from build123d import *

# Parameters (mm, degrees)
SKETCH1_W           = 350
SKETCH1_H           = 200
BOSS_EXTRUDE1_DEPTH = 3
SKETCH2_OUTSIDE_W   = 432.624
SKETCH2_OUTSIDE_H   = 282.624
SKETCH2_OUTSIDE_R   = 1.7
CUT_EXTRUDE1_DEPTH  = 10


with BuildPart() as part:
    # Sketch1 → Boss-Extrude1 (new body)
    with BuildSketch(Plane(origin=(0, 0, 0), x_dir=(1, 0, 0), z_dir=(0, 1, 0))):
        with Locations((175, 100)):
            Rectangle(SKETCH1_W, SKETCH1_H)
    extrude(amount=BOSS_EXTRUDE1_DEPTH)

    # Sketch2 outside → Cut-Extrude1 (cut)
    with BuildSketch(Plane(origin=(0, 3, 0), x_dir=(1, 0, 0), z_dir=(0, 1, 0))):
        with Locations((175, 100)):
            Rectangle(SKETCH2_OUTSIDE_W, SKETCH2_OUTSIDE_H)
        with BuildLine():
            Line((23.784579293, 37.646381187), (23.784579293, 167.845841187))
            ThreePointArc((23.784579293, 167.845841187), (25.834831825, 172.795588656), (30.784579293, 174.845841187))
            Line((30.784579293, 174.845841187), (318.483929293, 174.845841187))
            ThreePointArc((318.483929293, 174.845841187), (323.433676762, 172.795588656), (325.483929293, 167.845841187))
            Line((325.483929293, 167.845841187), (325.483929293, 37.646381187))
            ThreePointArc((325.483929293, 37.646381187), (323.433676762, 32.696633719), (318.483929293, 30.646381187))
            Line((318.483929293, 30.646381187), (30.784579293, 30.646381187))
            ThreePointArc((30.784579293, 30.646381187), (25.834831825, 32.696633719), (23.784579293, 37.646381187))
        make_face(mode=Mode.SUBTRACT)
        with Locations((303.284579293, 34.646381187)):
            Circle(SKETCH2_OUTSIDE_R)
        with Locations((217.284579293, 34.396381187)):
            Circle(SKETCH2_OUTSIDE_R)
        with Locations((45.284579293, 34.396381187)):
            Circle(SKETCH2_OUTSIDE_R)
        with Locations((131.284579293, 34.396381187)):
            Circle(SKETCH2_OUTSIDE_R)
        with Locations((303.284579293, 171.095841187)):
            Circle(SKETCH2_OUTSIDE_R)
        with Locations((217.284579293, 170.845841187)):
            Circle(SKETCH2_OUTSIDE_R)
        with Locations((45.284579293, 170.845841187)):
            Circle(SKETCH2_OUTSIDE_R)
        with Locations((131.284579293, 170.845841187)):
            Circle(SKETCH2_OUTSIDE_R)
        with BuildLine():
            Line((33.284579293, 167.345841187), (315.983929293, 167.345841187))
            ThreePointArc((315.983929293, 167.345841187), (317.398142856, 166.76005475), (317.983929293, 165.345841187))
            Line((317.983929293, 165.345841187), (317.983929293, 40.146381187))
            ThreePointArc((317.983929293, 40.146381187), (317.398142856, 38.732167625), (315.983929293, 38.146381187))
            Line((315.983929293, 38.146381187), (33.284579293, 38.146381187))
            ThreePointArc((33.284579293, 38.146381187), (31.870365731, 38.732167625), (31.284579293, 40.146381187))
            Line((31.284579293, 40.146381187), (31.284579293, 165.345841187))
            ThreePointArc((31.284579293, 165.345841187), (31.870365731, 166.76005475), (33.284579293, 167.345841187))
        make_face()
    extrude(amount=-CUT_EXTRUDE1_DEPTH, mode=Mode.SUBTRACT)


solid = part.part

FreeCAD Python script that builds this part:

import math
import FreeCAD as App
import Part
import Sketcher
from FreeCAD import Vector

doc = App.newDocument("Part")
body = doc.addObject("PartDesign::Body", "Body")

sketch1 = body.newObject("Sketcher::SketchObject", "Sketch")
sketch1.AttachmentSupport = (doc.getObject("XZ_Plane"), [""])
sketch1.MapMode = "FlatFace"
sketch1.addGeometry(Part.LineSegment(Vector(0, -200, 0), Vector(0, 0, 0)), False)
sketch1.addGeometry(Part.LineSegment(Vector(0, 0, 0), Vector(350, 0, 0)), False)
sketch1.addGeometry(Part.LineSegment(Vector(350, 0, 0), Vector(350, -200, 0)), False)
sketch1.addGeometry(Part.LineSegment(Vector(350, -200, 0), Vector(0, -200, 0)), False)
sketch1.addConstraint(Sketcher.Constraint("Coincident", 0, 2, 1, 1))
sketch1.addConstraint(Sketcher.Constraint("Coincident", 1, 2, 2, 1))
sketch1.addConstraint(Sketcher.Constraint("Coincident", 2, 2, 3, 1))
sketch1.addConstraint(Sketcher.Constraint("Coincident", 3, 2, 0, 1))
sketch1.addConstraint(Sketcher.Constraint("Vertical", 0))
sketch1.addConstraint(Sketcher.Constraint("Horizontal", 1))
sketch1.addConstraint(Sketcher.Constraint("Vertical", 2))
sketch1.addConstraint(Sketcher.Constraint("Horizontal", 3))
sketch1.addConstraint(Sketcher.Constraint("Coincident", 0, 2, -1, 1))
sketch1.addConstraint(Sketcher.Constraint("DistanceX", 1, 1, 1, 2, 350.0))
sketch1.addConstraint(Sketcher.Constraint("DistanceY", 0, 1, 0, 2, 200.0))
pad1 = body.newObject("PartDesign::Pad", "Pad")
pad1.Profile = sketch1
pad1.Length = 3
pad1.Reversed = True

sketch2 = body.newObject("Sketcher::SketchObject", "Sketch001")
sketch2.AttachmentSupport = (doc.getObject("XZ_Plane"), [""])
sketch2.MapMode = "FlatFace"
sketch2.AttachmentOffset = App.Placement(Vector(0, 0, -3), App.Rotation())
sketch2.addGeometry(Part.LineSegment(Vector(-41.3, -241.3, 0), Vector(-41.3, 41.3, 0)), False)
sketch2.addGeometry(Part.LineSegment(Vector(-41.3, 41.3, 0), Vector(391.3, 41.3, 0)), False)
sketch2.addGeometry(Part.LineSegment(Vector(391.3, 41.3, 0), Vector(391.3, -241.3, 0)), False)
sketch2.addGeometry(Part.LineSegment(Vector(391.3, -241.3, 0), Vector(-41.3, -241.3, 0)), False)
sketch2.addGeometry(Part.ArcOfCircle(Part.Circle(Vector(30.8, -37.6, 0), Vector(0, 0, 1), 7), math.radians(90), math.radians(180)), False)
sketch2.addGeometry(Part.LineSegment(Vector(23.8, -37.6, 0), Vector(23.8, -167.8, 0)), False)
sketch2.addGeometry(Part.ArcOfCircle(Part.Circle(Vector(30.8, -167.8, 0), Vector(0, 0, 1), 7), math.radians(180), math.radians(270)), False)
sketch2.addGeometry(Part.LineSegment(Vector(30.8, -174.8, 0), Vector(318.5, -174.8, 0)), False)
sketch2.addGeometry(Part.ArcOfCircle(Part.Circle(Vector(318.5, -167.8, 0), Vector(0, 0, 1), 7), math.radians(-90), math.radians(0)), False)
sketch2.addGeometry(Part.LineSegment(Vector(325.5, -167.8, 0), Vector(325.5, -37.6, 0)), False)
sketch2.addGeometry(Part.ArcOfCircle(Part.Circle(Vector(318.5, -37.6, 0), Vector(0, 0, 1), 7), math.radians(0), math.radians(90)), False)
sketch2.addGeometry(Part.LineSegment(Vector(318.5, -30.6, 0), Vector(30.8, -30.6, 0)), False)
sketch2.addGeometry(Part.Circle(Vector(303.3, -34.6, 0), Vector(0, 0, 1), 1.7), False)
sketch2.addGeometry(Part.Circle(Vector(217.3, -34.4, 0), Vector(0, 0, 1), 1.7), False)
sketch2.addGeometry(Part.Circle(Vector(45.3, -34.4, 0), Vector(0, 0, 1), 1.7), False)
sketch2.addGeometry(Part.Circle(Vector(131.3, -34.4, 0), Vector(0, 0, 1), 1.7), False)
sketch2.addGeometry(Part.Circle(Vector(303.3, -171.1, 0), Vector(0, 0, 1), 1.7), False)
sketch2.addGeometry(Part.Circle(Vector(217.3, -170.8, 0), Vector(0, 0, 1), 1.7), False)
sketch2.addGeometry(Part.Circle(Vector(45.3, -170.8, 0), Vector(0, 0, 1), 1.7), False)
sketch2.addGeometry(Part.Circle(Vector(131.3, -170.8, 0), Vector(0, 0, 1), 1.7), False)
sketch2.addGeometry(Part.LineSegment(Vector(316, -167.3, 0), Vector(33.3, -167.3, 0)), False)
sketch2.addGeometry(Part.ArcOfCircle(Part.Circle(Vector(33.3, -165.3, 0), Vector(0, 0, 1), 2), math.radians(180), math.radians(270)), False)
sketch2.addGeometry(Part.LineSegment(Vector(31.3, -165.3, 0), Vector(31.3, -40.1, 0)), False)
sketch2.addGeometry(Part.ArcOfCircle(Part.Circle(Vector(33.3, -40.1, 0), Vector(0, 0, 1), 2), math.radians(90), math.radians(180)), False)
sketch2.addGeometry(Part.LineSegment(Vector(33.3, -38.1, 0), Vector(316, -38.1, 0)), False)
sketch2.addGeometry(Part.ArcOfCircle(Part.Circle(Vector(316, -40.1, 0), Vector(0, 0, 1), 2), math.radians(0), math.radians(90)), False)
sketch2.addGeometry(Part.LineSegment(Vector(318, -40.1, 0), Vector(318, -165.3, 0)), False)
sketch2.addGeometry(Part.ArcOfCircle(Part.Circle(Vector(316, -165.3, 0), Vector(0, 0, 1), 2), math.radians(-90), math.radians(0)), False)
sketch2.addConstraint(Sketcher.Constraint("Coincident", 0, 2, 1, 1))
sketch2.addConstraint(Sketcher.Constraint("Coincident", 1, 2, 2, 1))
sketch2.addConstraint(Sketcher.Constraint("Coincident", 2, 2, 3, 1))
sketch2.addConstraint(Sketcher.Constraint("Coincident", 3, 2, 0, 1))
sketch2.addConstraint(Sketcher.Constraint("Tangent", 4, 2, 5, 1))
sketch2.addConstraint(Sketcher.Constraint("Tangent", 5, 2, 6, 1))
sketch2.addConstraint(Sketcher.Constraint("Tangent", 6, 2, 7, 1))
sketch2.addConstraint(Sketcher.Constraint("Tangent", 7, 2, 8, 1))
sketch2.addConstraint(Sketcher.Constraint("Tangent", 8, 2, 9, 1))
sketch2.addConstraint(Sketcher.Constraint("Tangent", 9, 2, 10, 1))
sketch2.addConstraint(Sketcher.Constraint("Tangent", 10, 2, 11, 1))
sketch2.addConstraint(Sketcher.Constraint("Tangent", 11, 2, 4, 1))
sketch2.addConstraint(Sketcher.Constraint("Tangent", 20, 2, 21, 2))
sketch2.addConstraint(Sketcher.Constraint("Tangent", 21, 1, 22, 1))
sketch2.addConstraint(Sketcher.Constraint("Tangent", 22, 2, 23, 2))
sketch2.addConstraint(Sketcher.Constraint("Tangent", 23, 1, 24, 1))
sketch2.addConstraint(Sketcher.Constraint("Tangent", 24, 2, 25, 2))
sketch2.addConstraint(Sketcher.Constraint("Tangent", 25, 1, 26, 1))
sketch2.addConstraint(Sketcher.Constraint("Tangent", 26, 2, 27, 2))
sketch2.addConstraint(Sketcher.Constraint("Tangent", 27, 1, 20, 1))
sketch2.addConstraint(Sketcher.Constraint("Vertical", 0))
sketch2.addConstraint(Sketcher.Constraint("Horizontal", 1))
sketch2.addConstraint(Sketcher.Constraint("Vertical", 2))
sketch2.addConstraint(Sketcher.Constraint("Horizontal", 3))
sketch2.addConstraint(Sketcher.Constraint("Vertical", 5))
sketch2.addConstraint(Sketcher.Constraint("Horizontal", 7))
sketch2.addConstraint(Sketcher.Constraint("Vertical", 9))
sketch2.addConstraint(Sketcher.Constraint("Horizontal", 11))
sketch2.addConstraint(Sketcher.Constraint("Horizontal", 20))
sketch2.addConstraint(Sketcher.Constraint("Vertical", 22))
sketch2.addConstraint(Sketcher.Constraint("Horizontal", 24))
sketch2.addConstraint(Sketcher.Constraint("Vertical", 26))
sketch2.addConstraint(Sketcher.Constraint("Equal", 4, 6))
sketch2.addConstraint(Sketcher.Constraint("Equal", 6, 8))
sketch2.addConstraint(Sketcher.Constraint("Equal", 8, 10))
sketch2.addConstraint(Sketcher.Constraint("Equal", 12, 13))
sketch2.addConstraint(Sketcher.Constraint("Equal", 13, 14))
sketch2.addConstraint(Sketcher.Constraint("Equal", 14, 15))
sketch2.addConstraint(Sketcher.Constraint("Equal", 15, 16))
sketch2.addConstraint(Sketcher.Constraint("Equal", 16, 17))
sketch2.addConstraint(Sketcher.Constraint("Equal", 17, 18))
sketch2.addConstraint(Sketcher.Constraint("Equal", 18, 19))
sketch2.addConstraint(Sketcher.Constraint("Equal", 21, 23))
sketch2.addConstraint(Sketcher.Constraint("Equal", 23, 25))
sketch2.addConstraint(Sketcher.Constraint("Equal", 25, 27))
sketch2.addConstraint(Sketcher.Constraint("Horizontal", 13, 3, 14, 3))
sketch2.addConstraint(Sketcher.Constraint("Horizontal", 14, 3, 15, 3))
sketch2.addConstraint(Sketcher.Constraint("Horizontal", 17, 3, 18, 3))
sketch2.addConstraint(Sketcher.Constraint("Horizontal", 18, 3, 19, 3))
sketch2.addConstraint(Sketcher.Constraint("Vertical", 12, 3, 16, 3))
sketch2.addConstraint(Sketcher.Constraint("Vertical", 13, 3, 17, 3))
sketch2.addConstraint(Sketcher.Constraint("Vertical", 14, 3, 18, 3))
sketch2.addConstraint(Sketcher.Constraint("Vertical", 15, 3, 19, 3))
sketch2.addConstraint(Sketcher.Constraint("Radius", 4, 7.0))
sketch2.addConstraint(Sketcher.Constraint("Radius", 21, 2.0))
sketch2.addConstraint(Sketcher.Constraint("Diameter", 12, 3.4))
sketch2.addConstraint(Sketcher.Constraint("DistanceY", 10, 3, 12, 3, 3.0))
sketch2.addConstraint(Sketcher.Constraint("DistanceX", 13, 3, 12, 3, 86.0))
sketch2.addConstraint(Sketcher.Constraint("DistanceX", 14, 3, 13, 3, 172.0))
sketch2.addConstraint(Sketcher.Constraint("DistanceX", 15, 3, 13, 3, 86.0))
sketch2.addConstraint(Sketcher.Constraint("DistanceY", 17, 3, 8, 3, 3.0))
sketch2.addConstraint(Sketcher.Constraint("DistanceX", 21, 3, 18, 3, 12.0))
sketch2.addConstraint(Sketcher.Constraint("DistanceX", 4, 3, 12, 3, 272.5))
sketch2.addConstraint(Sketcher.Constraint("DistanceY", 6, 3, 21, 3, 2.5))
sketch2.addConstraint(Sketcher.Constraint("DistanceY", 23, 3, 4, 3, 2.5))
sketch2.addConstraint(Sketcher.Constraint("DistanceX", 25, 3, 10, 3, 2.5))
sketch2.addConstraint(Sketcher.Constraint("DistanceX", 1, 1, 1, 2, 432.624))
sketch2.addConstraint(Sketcher.Constraint("DistanceY", 0, 1, 0, 2, 282.624))
sketch2.addConstraint(Sketcher.Constraint("DistanceY", 12, 3, 13, 3, 0.25))
sketch2.addConstraint(Sketcher.Constraint("DistanceY", 16, 3, 8, 3, 3.25))
sketch2.addConstraint(Sketcher.Constraint("DistanceX", 0, 2, -1, 1, 41.312))
sketch2.addConstraint(Sketcher.Constraint("DistanceY", -1, 1, 0, 2, 41.312))
sketch2.addConstraint(Sketcher.Constraint("DistanceX", 7, 1, 7, 2, 287.69935))
sketch2.addConstraint(Sketcher.Constraint("DistanceY", 5, 2, 5, 1, 130.19946))
sketch2.addConstraint(Sketcher.Constraint("DistanceX", -1, 1, 4, 3, 30.784579))
sketch2.addConstraint(Sketcher.Constraint("DistanceY", 4, 3, -1, 1, 37.646381))
pocket1 = body.newObject("PartDesign::Pocket", "Pocket")
pocket1.Profile = sketch2
pocket1.Length = 10
pocket1.Reversed = True

doc.recompute()
